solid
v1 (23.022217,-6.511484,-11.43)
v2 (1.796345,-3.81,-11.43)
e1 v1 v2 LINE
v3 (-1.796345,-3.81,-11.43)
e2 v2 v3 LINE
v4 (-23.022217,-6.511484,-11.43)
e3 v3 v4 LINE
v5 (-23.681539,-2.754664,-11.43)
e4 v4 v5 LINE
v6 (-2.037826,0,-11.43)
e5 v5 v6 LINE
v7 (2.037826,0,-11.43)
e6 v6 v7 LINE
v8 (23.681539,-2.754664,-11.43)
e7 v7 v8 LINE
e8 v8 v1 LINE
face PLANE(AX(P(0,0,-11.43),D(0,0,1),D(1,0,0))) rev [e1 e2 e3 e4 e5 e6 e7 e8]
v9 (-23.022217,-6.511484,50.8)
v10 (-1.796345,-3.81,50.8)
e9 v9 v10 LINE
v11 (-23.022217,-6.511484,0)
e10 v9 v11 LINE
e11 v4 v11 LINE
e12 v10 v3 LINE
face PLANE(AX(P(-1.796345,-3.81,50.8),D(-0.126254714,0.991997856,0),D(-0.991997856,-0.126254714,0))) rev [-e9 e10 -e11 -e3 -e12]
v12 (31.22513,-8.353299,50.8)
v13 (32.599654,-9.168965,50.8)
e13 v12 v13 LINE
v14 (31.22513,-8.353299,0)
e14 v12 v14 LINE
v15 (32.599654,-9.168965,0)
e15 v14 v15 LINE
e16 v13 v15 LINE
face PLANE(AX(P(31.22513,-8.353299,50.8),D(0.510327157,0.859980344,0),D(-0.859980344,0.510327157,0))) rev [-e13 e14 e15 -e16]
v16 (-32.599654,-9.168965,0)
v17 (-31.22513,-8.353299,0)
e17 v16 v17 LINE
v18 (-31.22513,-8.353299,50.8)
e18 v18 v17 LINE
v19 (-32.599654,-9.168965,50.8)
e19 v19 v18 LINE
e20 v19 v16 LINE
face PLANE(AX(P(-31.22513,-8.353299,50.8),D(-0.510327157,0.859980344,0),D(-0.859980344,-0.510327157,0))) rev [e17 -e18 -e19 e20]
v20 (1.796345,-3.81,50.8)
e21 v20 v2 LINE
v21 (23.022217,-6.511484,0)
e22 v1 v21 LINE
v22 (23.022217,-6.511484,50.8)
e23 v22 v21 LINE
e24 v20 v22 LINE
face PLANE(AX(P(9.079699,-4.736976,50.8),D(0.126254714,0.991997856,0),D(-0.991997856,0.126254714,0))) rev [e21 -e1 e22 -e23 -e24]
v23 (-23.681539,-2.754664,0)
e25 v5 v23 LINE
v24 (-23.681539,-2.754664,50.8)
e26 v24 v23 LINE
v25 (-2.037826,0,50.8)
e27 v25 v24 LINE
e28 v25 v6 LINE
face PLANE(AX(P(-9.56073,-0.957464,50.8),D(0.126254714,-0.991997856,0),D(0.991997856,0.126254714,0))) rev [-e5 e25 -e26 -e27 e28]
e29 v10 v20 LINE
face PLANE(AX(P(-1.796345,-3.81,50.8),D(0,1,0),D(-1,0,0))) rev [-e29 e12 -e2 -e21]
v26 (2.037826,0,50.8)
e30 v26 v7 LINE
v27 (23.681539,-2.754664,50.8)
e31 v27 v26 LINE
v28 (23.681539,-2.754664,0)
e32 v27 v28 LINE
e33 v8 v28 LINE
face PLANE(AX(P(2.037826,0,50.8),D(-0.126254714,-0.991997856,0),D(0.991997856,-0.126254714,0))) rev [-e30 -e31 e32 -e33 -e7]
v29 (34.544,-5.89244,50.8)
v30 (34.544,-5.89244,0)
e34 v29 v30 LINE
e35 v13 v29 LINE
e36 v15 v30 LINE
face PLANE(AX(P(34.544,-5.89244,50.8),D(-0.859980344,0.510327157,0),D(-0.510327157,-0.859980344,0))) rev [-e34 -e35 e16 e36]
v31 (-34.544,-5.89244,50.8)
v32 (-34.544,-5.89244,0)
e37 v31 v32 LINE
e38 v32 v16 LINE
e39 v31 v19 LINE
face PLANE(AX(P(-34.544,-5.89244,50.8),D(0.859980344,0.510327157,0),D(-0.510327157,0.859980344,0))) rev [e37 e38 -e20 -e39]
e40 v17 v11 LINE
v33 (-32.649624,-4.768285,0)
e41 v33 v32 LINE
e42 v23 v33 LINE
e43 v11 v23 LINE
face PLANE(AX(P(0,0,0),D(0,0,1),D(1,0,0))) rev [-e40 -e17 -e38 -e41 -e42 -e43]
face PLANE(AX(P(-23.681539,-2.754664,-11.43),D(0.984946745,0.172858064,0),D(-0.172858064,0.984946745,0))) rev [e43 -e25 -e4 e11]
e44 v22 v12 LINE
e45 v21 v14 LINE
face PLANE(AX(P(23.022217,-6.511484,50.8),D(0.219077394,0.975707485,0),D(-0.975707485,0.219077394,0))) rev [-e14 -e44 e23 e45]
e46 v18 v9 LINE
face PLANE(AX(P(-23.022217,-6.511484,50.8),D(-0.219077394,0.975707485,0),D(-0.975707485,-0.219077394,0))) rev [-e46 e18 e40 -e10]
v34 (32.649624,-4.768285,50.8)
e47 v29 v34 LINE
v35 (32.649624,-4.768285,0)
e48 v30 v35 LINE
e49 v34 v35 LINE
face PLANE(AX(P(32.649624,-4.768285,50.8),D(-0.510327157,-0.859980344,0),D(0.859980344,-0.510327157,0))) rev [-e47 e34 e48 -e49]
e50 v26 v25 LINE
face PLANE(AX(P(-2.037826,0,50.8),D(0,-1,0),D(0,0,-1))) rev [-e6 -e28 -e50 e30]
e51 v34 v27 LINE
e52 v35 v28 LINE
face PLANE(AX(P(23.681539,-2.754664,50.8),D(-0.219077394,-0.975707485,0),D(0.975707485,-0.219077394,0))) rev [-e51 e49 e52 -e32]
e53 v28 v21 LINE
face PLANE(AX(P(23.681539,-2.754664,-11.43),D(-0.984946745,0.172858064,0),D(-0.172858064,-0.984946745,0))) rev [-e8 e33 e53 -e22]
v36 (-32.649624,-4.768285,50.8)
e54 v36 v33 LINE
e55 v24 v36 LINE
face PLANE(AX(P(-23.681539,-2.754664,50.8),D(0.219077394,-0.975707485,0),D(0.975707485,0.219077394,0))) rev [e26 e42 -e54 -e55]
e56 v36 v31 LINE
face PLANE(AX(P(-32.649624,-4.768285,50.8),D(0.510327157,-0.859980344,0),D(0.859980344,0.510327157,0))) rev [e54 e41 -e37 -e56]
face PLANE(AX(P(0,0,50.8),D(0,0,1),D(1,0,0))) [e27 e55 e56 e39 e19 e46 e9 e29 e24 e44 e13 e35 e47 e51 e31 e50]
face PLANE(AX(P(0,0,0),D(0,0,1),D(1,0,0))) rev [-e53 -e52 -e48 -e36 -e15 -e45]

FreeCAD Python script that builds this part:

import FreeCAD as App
import Part
import Sketcher

V = App.Vector
Q = App.Units.Quantity

doc = App.newDocument("Part")
body = doc.addObject("PartDesign::Body", "Body")

# Sketch on XY plane
sketch1 = body.newObject("Sketcher::SketchObject", "Sketch")
sketch1.AttachmentSupport = (doc.getObject("XY_Plane"), [""])
sketch1.MapMode = "FlatFace"
sketch1.addGeometry(Part.LineSegment(V(2.037826, 0, 0), V(-2.037826, 0, 0)), False)
sketch1.addGeometry(Part.LineSegment(V(-2.037826, 0, 0), V(-4.901371, -0.364452, 0)), False)
sketch1.addGeometry(Part.LineSegment(V(-4.901371, -0.364452, 0), V(-9.56073, -0.957464, 0)), False)
sketch1.addGeometry(Part.LineSegment(V(-9.56073, -0.957464, 0), V(-23.681539, -2.754664, 0)), False)
sketch1.addGeometry(Part.LineSegment(V(-23.681539, -2.754664, 0), V(-32.649624, -4.768285, 0)), False)
sketch1.addGeometry(Part.LineSegment(V(-32.649624, -4.768285, 0), V(-34.544, -5.89244, 0)), False)
sketch1.addGeometry(Part.LineSegment(V(-34.544, -5.89244, 0), V(-32.599654, -9.168965, 0)), False)
sketch1.addGeometry(Part.LineSegment(V(-32.599654, -9.168965, 0), V(-31.22513, -8.353299, 0)), False)
sketch1.addGeometry(Part.LineSegment(V(-31.22513, -8.353299, 0), V(-23.022217, -6.511484, 0)), False)
sketch1.addGeometry(Part.LineSegment(V(-23.022217, -6.511484, 0), V(-9.079699, -4.736976, 0)), False)
sketch1.addGeometry(Part.LineSegment(V(-9.079699, -4.736976, 0), V(-4.420341, -4.143964, 0)), False)
sketch1.addGeometry(Part.LineSegment(V(-4.420341, -4.143964, 0), V(-1.796345, -3.81, 0)), False)
sketch1.addGeometry(Part.LineSegment(V(-1.796345, -3.81, 0), V(1.796345, -3.81, 0)), False)
sketch1.addGeometry(Part.LineSegment(V(1.796345, -3.81, 0), V(4.420341, -4.143964, 0)), False)
sketch1.addGeometry(Part.LineSegment(V(4.420341, -4.143964, 0), V(9.079699, -4.736976, 0)), False)
sketch1.addGeometry(Part.LineSegment(V(9.079699, -4.736976, 0), V(23.022217, -6.511484, 0)), False)
sketch1.addGeometry(Part.LineSegment(V(23.022217, -6.511484, 0), V(31.22513, -8.353299, 0)), False)
sketch1.addGeometry(Part.LineSegment(V(31.22513, -8.353299, 0), V(32.599654, -9.168965, 0)), False)
sketch1.addGeometry(Part.LineSegment(V(32.599654, -9.168965, 0), V(34.544, -5.89244, 0)), False)
sketch1.addGeometry(Part.LineSegment(V(34.544, -5.89244, 0), V(32.649624, -4.768285, 0)), False)
sketch1.addGeometry(Part.LineSegment(V(32.649624, -4.768285, 0), V(23.681539, -2.754664, 0)), False)
sketch1.addGeometry(Part.LineSegment(V(23.681539, -2.754664, 0), V(9.56073, -0.957464, 0)), False)
sketch1.addGeometry(Part.LineSegment(V(9.56073, -0.957464, 0), V(4.901371, -0.364452, 0)), False)
sketch1.addGeometry(Part.LineSegment(V(4.901371, -0.364452, 0), V(2.037826, 0, 0)), False)
sketch1.addConstraint(Sketcher.Constraint("Coincident", 0, 2, 1, 1))
sketch1.addConstraint(Sketcher.Constraint("Coincident", 1, 2, 2, 1))
sketch1.addConstraint(Sketcher.Constraint("Coincident", 2, 2, 3, 1))
sketch1.addConstraint(Sketcher.Constraint("Coincident", 3, 2, 4, 1))
sketch1.addConstraint(Sketcher.Constraint("Coincident", 4, 2, 5, 1))
sketch1.addConstraint(Sketcher.Constraint("Coincident", 5, 2, 6, 1))
sketch1.addConstraint(Sketcher.Constraint("Coincident", 6, 2, 7, 1))
sketch1.addConstraint(Sketcher.Constraint("Coincident", 7, 2, 8, 1))
sketch1.addConstraint(Sketcher.Constraint("Coincident", 8, 2, 9, 1))
sketch1.addConstraint(Sketcher.Constraint("Coincident", 9, 2, 10, 1))
sketch1.addConstraint(Sketcher.Constraint("Coincident", 10, 2, 11, 1))
sketch1.addConstraint(Sketcher.Constraint("Coincident", 11, 2, 12, 1))
sketch1.addConstraint(Sketcher.Constraint("Coincident", 12, 2, 13, 1))
sketch1.addConstraint(Sketcher.Constraint("Coincident", 13, 2, 14, 1))
sketch1.addConstraint(Sketcher.Constraint("Coincident", 14, 2, 15, 1))
sketch1.addConstraint(Sketcher.Constraint("Coincident", 15, 2, 16, 1))
sketch1.addConstraint(Sketcher.Constraint("Coincident", 16, 2, 17, 1))
sketch1.addConstraint(Sketcher.Constraint("Coincident", 17, 2, 18, 1))
sketch1.addConstraint(Sketcher.Constraint("Coincident", 18, 2, 19, 1))
sketch1.addConstraint(Sketcher.Constraint("Coincident", 19, 2, 20, 1))
sketch1.addConstraint(Sketcher.Constraint("Coincident", 20, 2, 21, 1))
sketch1.addConstraint(Sketcher.Constraint("Coincident", 21, 2, 22, 1))
sketch1.addConstraint(Sketcher.Constraint("Coincident", 22, 2, 23, 1))
sketch1.addConstraint(Sketcher.Constraint("Coincident", 23, 2, 0, 1))
sketch1.addConstraint(Sketcher.Constraint("Horizontal", 0))
sketch1.addConstraint(Sketcher.Constraint("Horizontal", 12))
sketch1.addConstraint(Sketcher.Constraint("PointOnObject", 0, 2, -1))
sketch1.addConstraint(Sketcher.Constraint("Distance", 6, Q("0.15 in")))
sketch1.addConstraint(Sketcher.Constraint("Distance", 18, Q("0.15 in")))
sketch1.addConstraint(Sketcher.Constraint("DistanceX", 5, 2, -1, 1, Q("1.36 in")))
sketch1.addConstraint(Sketcher.Constraint("DistanceY", 11, 2, -1, 1, Q("0.15 in")))
sketch1.addConstraint(Sketcher.Constraint("DistanceX", -1, 1, 18, 2, Q("1.36 in")))
sketch1.addConstraint(Sketcher.Constraint("DistanceX", 12, 1, 12, 2, 3.592689))
sketch1.addConstraint(Sketcher.Constraint("DistanceY", 7, 2, -1, 1, 8.353299))
sketch1.addConstraint(Sketcher.Constraint("DistanceX", 9, 2, -1, 1, 9.079699))
sketch1.addConstraint(Sketcher.Constraint("DistanceX", -1, 1, 14, 2, 9.079699))
sketch1.addConstraint(Sketcher.Constraint("DistanceY", 16, 2, -1, 1, 8.353299))
sketch1.addConstraint(Sketcher.Constraint("DistanceY", 3, 2, 2, 2, 1.7972))
sketch1.addConstraint(Sketcher.Constraint("DistanceY", 6, 2, 3, 2, 6.414301))
sketch1.addConstraint(Sketcher.Constraint("DistanceX", 7, 2, 2, 2, 21.6644))
sketch1.addConstraint(Sketcher.Constraint("DistanceY", 8, 2, 4, 2, 1.7432))
sketch1.addConstraint(Sketcher.Constraint("DistanceY", 10, 2, 2, 2, 3.1865))
sketch1.addConstraint(Sketcher.Constraint("DistanceY", 17, 2, 13, 2, 5.025001))
sketch1.addConstraint(Sketcher.Constraint("DistanceY", 15, 2, 19, 2, 1.7432))
sketch1.addConstraint(Sketcher.Constraint("DistanceY", 17, 2, 20, 2, 6.414301))
sketch1.addConstraint(Sketcher.Constraint("DistanceY", 13, 2, 21, 2, 3.1865))
sketch1.addConstraint(Sketcher.Constraint("Distance", 7, 1.59832))
sketch1.addConstraint(Sketcher.Constraint("Distance", 17, 1.59832))
sketch1.addConstraint(Sketcher.Constraint("DistanceX", 0, 2, 0, 1, 4.075652))
sketch1.addConstraint(Sketcher.Constraint("DistanceX", 1, 2, -1, 1, 4.901371))
sketch1.addConstraint(Sketcher.Constraint("DistanceX", 2, 2, -1, 1, 9.56073))
sketch1.addConstraint(Sketcher.Constraint("DistanceX", 3, 2, -1, 1, 23.681539))
sketch1.addConstraint(Sketcher.Constraint("DistanceY", 5, 2, -1, 1, 5.89244))
sketch1.addConstraint(Sketcher.Constraint("DistanceX", 10, 2, -1, 1, 4.420341))
sketch1.addConstraint(Sketcher.Constraint("DistanceX", -1, 1, 13, 2, 4.420341))
sketch1.addConstraint(Sketcher.Constraint("DistanceX", -1, 1, 16, 2, 31.22513))
sketch1.addConstraint(Sketcher.Constraint("DistanceY", 18, 2, -1, 1, 5.89244))
sketch1.addConstraint(Sketcher.Constraint("DistanceX", -1, 1, 20, 2, 23.681539))
sketch1.addConstraint(Sketcher.Constraint("DistanceX", -1, 1, 21, 2, 9.56073))
sketch1.addConstraint(Sketcher.Constraint("DistanceX", -1, 1, 22, 2, 4.901371))
sketch1.addConstraint(Sketcher.Constraint("DistanceY", 2, 2, 1, 2, 0.593011))
sketch1.addConstraint(Sketcher.Constraint("DistanceY", 4, 2, 3, 2, 2.013621))
sketch1.addConstraint(Sketcher.Constraint("DistanceX", 4, 2, 6, 2, 0.04997))
sketch1.addConstraint(Sketcher.Constraint("DistanceX", 3, 2, 8, 2, 0.659322))
sketch1.addConstraint(Sketcher.Constraint("DistanceY", 9, 2, 2, 2, 3.779512))
sketch1.addConstraint(Sketcher.Constraint("DistanceX", 0, 2, 11, 2, 0.241481))
sketch1.addConstraint(Sketcher.Constraint("DistanceY", 14, 2, 13, 2, 0.593011))
sketch1.addConstraint(Sketcher.Constraint("DistanceY", 15, 2, 14, 2, 1.774508))
sketch1.addConstraint(Sketcher.Constraint("DistanceX", 11, 2, 15, 2, 24.818562))
sketch1.addConstraint(Sketcher.Constraint("DistanceX", 12, 2, 17, 2, 30.803309))
sketch1.addConstraint(Sketcher.Constraint("DistanceX", 17, 2, 19, 2, 0.04997))
sketch1.addConstraint(Sketcher.Constraint("DistanceY", 13, 2, 22, 2, 3.779512))
pad1 = body.newObject("PartDesign::Pad", "Pad")
pad1.Profile = sketch1
pad1.Length = Q("2 in")

# Sketch on XY plane
sketch2 = body.newObject("Sketcher::SketchObject", "Sketch001")
sketch2.AttachmentSupport = (doc.getObject("XY_Plane"), [""])
sketch2.MapMode = "FlatFace"
sketch2.addGeometry(Part.LineSegment(V(-1.8, -3.8, 0), V(-23, -6.5, 0)), False)
sketch2.addGeometry(Part.LineSegment(V(-23, -6.5, 0), V(-23.7, -2.8, 0)), False)
sketch2.addGeometry(Part.LineSegment(V(-23.7, -2.8, 0), V(-2, 0, 0)), False)
sketch2.addGeometry(Part.LineSegment(V(-2, 0, 0), V(2, 0, 0)), False)
sketch2.addGeometry(Part.LineSegment(V(2, 0, 0), V(23.7, -2.8, 0)), False)
sketch2.addGeometry(Part.LineSegment(V(23.7, -2.8, 0), V(23, -6.5, 0)), False)
sketch2.addGeometry(Part.LineSegment(V(23, -6.5, 0), V(1.8, -3.8, 0)), False)
sketch2.addGeometry(Part.LineSegment(V(1.8, -3.8, 0), V(-1.8, -3.8, 0)), False)
sketch2.addConstraint(Sketcher.Constraint("Coincident", 0, 2, 1, 1))
sketch2.addConstraint(Sketcher.Constraint("Coincident", 1, 2, 2, 1))
sketch2.addConstraint(Sketcher.Constraint("Coincident", 2, 2, 3, 1))
sketch2.addConstraint(Sketcher.Constraint("Coincident", 3, 2, 4, 1))
sketch2.addConstraint(Sketcher.Constraint("Coincident", 4, 2, 5, 1))
sketch2.addConstraint(Sketcher.Constraint("Coincident", 5, 2, 6, 1))
sketch2.addConstraint(Sketcher.Constraint("Coincident", 6, 2, 7, 1))
sketch2.addConstraint(Sketcher.Constraint("Coincident", 7, 2, 0, 1))
sketch2.addConstraint(Sketcher.Constraint("Horizontal", 3))
sketch2.addConstraint(Sketcher.Constraint("Horizontal", 7))
sketch2.addConstraint(Sketcher.Constraint("Symmetric", 2, 2, 3, 2, -1, 1))
sketch2.addConstraint(Sketcher.Constraint("Symmetric", 1, 2, 4, 2, -2))
sketch2.addConstraint(Sketcher.Constraint("Symmetric", 0, 2, 5, 2, -2))
sketch2.addConstraint(Sketcher.Constraint("Parallel", 0, 2))
sketch2.addConstraint(Sketcher.Constraint("Parallel", 4, 6))
sketch2.addConstraint(Sketcher.Constraint("DistanceY", 6, 2, -1, 1, Q("0.15 in")))
sketch2.addConstraint(Sketcher.Constraint("DistanceX", 7, 2, 7, 1, 3.592689))
sketch2.addConstraint(Sketcher.Constraint("DistanceX", 3, 1, 3, 2, 4.075652))
sketch2.addConstraint(Sketcher.Constraint("DistanceX", 1, 2, -1, 1, 23.681539))
sketch2.addConstraint(Sketcher.Constraint("DistanceX", 1, 2, 0, 2, 0.659322))
sketch2.addConstraint(Sketcher.Constraint("DistanceY", 0, 2, 1, 2, 3.75682))
pad2 = body.newObject("PartDesign::Pad", "Pad001")
pad2.Profile = sketch2
pad2.Length = Q("0.45 in")
pad2.Reversed = True

doc.recompute()
